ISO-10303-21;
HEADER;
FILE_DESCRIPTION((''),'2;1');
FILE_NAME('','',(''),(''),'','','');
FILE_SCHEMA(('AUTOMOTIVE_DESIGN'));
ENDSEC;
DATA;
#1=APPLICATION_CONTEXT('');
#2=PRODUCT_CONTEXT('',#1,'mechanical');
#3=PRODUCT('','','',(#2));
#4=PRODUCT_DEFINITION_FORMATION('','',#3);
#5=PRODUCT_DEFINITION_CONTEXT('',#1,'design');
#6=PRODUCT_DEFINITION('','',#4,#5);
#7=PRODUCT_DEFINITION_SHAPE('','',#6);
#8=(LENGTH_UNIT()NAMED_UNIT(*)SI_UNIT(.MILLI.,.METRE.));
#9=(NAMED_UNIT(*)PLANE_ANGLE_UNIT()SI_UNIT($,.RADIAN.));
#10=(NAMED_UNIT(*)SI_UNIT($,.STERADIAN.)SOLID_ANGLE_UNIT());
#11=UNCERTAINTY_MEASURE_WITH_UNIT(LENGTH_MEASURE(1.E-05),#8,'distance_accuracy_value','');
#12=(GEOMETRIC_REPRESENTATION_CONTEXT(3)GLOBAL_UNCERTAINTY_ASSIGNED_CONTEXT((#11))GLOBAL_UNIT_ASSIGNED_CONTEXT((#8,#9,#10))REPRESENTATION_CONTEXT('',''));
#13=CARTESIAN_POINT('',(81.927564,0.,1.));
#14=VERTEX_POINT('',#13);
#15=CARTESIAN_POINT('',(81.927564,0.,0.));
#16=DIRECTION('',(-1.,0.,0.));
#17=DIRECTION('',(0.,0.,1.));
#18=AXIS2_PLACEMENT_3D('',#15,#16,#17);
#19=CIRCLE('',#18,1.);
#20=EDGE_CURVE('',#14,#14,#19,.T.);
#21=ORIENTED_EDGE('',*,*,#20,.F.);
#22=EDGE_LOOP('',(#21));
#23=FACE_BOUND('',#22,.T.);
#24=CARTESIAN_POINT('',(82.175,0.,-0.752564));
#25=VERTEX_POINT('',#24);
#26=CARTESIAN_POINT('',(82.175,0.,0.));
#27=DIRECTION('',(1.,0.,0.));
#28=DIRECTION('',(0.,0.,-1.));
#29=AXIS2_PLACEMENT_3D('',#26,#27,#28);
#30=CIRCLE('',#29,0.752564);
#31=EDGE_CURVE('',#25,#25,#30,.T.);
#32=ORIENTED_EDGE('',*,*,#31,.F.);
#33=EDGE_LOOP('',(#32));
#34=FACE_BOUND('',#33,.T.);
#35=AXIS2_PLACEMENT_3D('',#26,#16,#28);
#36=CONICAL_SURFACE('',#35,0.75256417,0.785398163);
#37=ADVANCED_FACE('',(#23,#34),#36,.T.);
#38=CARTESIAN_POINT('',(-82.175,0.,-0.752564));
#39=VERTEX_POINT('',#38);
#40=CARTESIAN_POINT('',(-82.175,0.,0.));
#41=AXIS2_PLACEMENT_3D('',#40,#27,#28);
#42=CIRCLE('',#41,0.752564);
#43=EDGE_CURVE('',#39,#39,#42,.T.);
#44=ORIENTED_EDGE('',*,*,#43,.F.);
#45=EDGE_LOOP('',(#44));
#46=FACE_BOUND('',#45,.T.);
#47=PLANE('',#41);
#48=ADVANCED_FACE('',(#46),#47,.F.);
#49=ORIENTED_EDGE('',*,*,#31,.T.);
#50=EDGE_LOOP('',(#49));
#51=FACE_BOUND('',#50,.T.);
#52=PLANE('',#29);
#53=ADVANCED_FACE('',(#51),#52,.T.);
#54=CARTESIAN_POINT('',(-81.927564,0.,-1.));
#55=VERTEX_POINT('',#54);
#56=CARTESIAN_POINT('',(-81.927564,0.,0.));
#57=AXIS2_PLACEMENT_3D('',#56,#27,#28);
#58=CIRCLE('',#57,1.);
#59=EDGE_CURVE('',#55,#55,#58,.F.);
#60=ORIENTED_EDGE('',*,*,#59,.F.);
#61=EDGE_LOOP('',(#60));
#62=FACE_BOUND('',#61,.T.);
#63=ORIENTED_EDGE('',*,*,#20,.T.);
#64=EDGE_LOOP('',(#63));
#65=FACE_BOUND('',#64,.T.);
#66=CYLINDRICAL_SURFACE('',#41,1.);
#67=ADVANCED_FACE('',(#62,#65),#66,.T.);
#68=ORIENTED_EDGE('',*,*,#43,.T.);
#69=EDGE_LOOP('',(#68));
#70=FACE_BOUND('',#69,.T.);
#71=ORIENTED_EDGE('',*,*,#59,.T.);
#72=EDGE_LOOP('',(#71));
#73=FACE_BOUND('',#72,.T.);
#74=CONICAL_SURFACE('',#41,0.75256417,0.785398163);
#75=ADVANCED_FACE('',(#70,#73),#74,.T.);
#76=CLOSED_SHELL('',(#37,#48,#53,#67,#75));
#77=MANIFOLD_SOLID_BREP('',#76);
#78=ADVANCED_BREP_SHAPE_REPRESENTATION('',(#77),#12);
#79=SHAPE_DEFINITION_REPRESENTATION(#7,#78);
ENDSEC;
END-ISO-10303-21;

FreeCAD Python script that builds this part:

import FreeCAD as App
import Part
import Sketcher
from FreeCAD import Vector

doc = App.newDocument("Part")
body = doc.addObject("PartDesign::Body", "Body")

# Sketch on YZ plane
sketch1 = doc.addObject("Sketcher::SketchObject", "Sketch")
body.addObject(sketch1)
sketch1.AttachmentSupport = (doc.YZ_Plane, [""])
sketch1.MapMode = "FlatFace"
sketch1.addGeometry(Part.Circle(Vector(0, 0, 0), Vector(0, 0, 1), 1), False)
sketch1.addConstraint(Sketcher.Constraint("Coincident", 0, 3, -1, 1))
sketch1.addConstraint(Sketcher.Constraint("Diameter", 0, 2.0))
pad1 = doc.addObject("PartDesign::Pad", "Pad")
body.addObject(pad1)
pad1.Profile = sketch1
pad1.Type = "TwoLengths"
pad1.Length = 82.175
pad1.Length2 = 82.175

# Sketch on YZ plane
sketch2 = doc.addObject("Sketcher::SketchObject", "Sketch001")
body.addObject(sketch2)
sketch2.AttachmentSupport = (doc.YZ_Plane, [""])
sketch2.MapMode = "FlatFace"
sketch2.AttachmentOffset = App.Placement(Vector(0, 0, 82.175), App.Rotation())
sketch2.addGeometry(Part.LineSegment(Vector(183.8, 183.8, 0), Vector(-183.8, 183.8, 0)), False)
sketch2.addGeometry(Part.LineSegment(Vector(-183.8, 183.8, 0), Vector(-183.8, -183.8, 0)), False)
sketch2.addGeometry(Part.LineSegment(Vector(-183.8, -183.8, 0), Vector(183.8, -183.8, 0)), False)
sketch2.addGeometry(Part.LineSegment(Vector(183.8, -183.8, 0), Vector(183.8, 183.8, 0)), False)
sketch2.addGeometry(Part.Circle(Vector(0, 0, 0), Vector(0, 0, 1), 0.8), False)
sketch2.addConstraint(Sketcher.Constraint("Coincident", 0, 2, 1, 1))
sketch2.addConstraint(Sketcher.Constraint("Coincident", 1, 2, 2, 1))
sketch2.addConstraint(Sketcher.Constraint("Coincident", 2, 2, 3, 1))
sketch2.addConstraint(Sketcher.Constraint("Coincident", 3, 2, 0, 1))
sketch2.addConstraint(Sketcher.Constraint("Horizontal", 0))
sketch2.addConstraint(Sketcher.Constraint("Vertical", 1))
sketch2.addConstraint(Sketcher.Constraint("Horizontal", 2))
sketch2.addConstraint(Sketcher.Constraint("Vertical", 3))
sketch2.addConstraint(Sketcher.Constraint("Coincident", 4, 3, -1, 1))
sketch2.addConstraint(Sketcher.Constraint("Symmetric", 0, 2, 2, 2, -1, 1))
sketch2.addConstraint(Sketcher.Constraint("Equal", 2, 1))
sketch2.addConstraint(Sketcher.Constraint("Diameter", 4, 1.505128))
sketch2.addConstraint(Sketcher.Constraint("DistanceX", 0, 2, 0, 1, 367.574))
pocket1 = doc.addObject("PartDesign::Pocket", "Pocket")
body.addObject(pocket1)
pocket1.Profile = sketch2
pocket1.Length = 165.35
pocket1.TaperAngle = 45
doc.recompute()

mirrored = doc.addObject("PartDesign::Mirrored", "Mirrored")
body.addObject(mirrored)
mirrored.Originals = [pocket1]
mirrored.MirrorPlane = (doc.YZ_Plane, [""])
body.Tip = mirrored

doc.recompute()
